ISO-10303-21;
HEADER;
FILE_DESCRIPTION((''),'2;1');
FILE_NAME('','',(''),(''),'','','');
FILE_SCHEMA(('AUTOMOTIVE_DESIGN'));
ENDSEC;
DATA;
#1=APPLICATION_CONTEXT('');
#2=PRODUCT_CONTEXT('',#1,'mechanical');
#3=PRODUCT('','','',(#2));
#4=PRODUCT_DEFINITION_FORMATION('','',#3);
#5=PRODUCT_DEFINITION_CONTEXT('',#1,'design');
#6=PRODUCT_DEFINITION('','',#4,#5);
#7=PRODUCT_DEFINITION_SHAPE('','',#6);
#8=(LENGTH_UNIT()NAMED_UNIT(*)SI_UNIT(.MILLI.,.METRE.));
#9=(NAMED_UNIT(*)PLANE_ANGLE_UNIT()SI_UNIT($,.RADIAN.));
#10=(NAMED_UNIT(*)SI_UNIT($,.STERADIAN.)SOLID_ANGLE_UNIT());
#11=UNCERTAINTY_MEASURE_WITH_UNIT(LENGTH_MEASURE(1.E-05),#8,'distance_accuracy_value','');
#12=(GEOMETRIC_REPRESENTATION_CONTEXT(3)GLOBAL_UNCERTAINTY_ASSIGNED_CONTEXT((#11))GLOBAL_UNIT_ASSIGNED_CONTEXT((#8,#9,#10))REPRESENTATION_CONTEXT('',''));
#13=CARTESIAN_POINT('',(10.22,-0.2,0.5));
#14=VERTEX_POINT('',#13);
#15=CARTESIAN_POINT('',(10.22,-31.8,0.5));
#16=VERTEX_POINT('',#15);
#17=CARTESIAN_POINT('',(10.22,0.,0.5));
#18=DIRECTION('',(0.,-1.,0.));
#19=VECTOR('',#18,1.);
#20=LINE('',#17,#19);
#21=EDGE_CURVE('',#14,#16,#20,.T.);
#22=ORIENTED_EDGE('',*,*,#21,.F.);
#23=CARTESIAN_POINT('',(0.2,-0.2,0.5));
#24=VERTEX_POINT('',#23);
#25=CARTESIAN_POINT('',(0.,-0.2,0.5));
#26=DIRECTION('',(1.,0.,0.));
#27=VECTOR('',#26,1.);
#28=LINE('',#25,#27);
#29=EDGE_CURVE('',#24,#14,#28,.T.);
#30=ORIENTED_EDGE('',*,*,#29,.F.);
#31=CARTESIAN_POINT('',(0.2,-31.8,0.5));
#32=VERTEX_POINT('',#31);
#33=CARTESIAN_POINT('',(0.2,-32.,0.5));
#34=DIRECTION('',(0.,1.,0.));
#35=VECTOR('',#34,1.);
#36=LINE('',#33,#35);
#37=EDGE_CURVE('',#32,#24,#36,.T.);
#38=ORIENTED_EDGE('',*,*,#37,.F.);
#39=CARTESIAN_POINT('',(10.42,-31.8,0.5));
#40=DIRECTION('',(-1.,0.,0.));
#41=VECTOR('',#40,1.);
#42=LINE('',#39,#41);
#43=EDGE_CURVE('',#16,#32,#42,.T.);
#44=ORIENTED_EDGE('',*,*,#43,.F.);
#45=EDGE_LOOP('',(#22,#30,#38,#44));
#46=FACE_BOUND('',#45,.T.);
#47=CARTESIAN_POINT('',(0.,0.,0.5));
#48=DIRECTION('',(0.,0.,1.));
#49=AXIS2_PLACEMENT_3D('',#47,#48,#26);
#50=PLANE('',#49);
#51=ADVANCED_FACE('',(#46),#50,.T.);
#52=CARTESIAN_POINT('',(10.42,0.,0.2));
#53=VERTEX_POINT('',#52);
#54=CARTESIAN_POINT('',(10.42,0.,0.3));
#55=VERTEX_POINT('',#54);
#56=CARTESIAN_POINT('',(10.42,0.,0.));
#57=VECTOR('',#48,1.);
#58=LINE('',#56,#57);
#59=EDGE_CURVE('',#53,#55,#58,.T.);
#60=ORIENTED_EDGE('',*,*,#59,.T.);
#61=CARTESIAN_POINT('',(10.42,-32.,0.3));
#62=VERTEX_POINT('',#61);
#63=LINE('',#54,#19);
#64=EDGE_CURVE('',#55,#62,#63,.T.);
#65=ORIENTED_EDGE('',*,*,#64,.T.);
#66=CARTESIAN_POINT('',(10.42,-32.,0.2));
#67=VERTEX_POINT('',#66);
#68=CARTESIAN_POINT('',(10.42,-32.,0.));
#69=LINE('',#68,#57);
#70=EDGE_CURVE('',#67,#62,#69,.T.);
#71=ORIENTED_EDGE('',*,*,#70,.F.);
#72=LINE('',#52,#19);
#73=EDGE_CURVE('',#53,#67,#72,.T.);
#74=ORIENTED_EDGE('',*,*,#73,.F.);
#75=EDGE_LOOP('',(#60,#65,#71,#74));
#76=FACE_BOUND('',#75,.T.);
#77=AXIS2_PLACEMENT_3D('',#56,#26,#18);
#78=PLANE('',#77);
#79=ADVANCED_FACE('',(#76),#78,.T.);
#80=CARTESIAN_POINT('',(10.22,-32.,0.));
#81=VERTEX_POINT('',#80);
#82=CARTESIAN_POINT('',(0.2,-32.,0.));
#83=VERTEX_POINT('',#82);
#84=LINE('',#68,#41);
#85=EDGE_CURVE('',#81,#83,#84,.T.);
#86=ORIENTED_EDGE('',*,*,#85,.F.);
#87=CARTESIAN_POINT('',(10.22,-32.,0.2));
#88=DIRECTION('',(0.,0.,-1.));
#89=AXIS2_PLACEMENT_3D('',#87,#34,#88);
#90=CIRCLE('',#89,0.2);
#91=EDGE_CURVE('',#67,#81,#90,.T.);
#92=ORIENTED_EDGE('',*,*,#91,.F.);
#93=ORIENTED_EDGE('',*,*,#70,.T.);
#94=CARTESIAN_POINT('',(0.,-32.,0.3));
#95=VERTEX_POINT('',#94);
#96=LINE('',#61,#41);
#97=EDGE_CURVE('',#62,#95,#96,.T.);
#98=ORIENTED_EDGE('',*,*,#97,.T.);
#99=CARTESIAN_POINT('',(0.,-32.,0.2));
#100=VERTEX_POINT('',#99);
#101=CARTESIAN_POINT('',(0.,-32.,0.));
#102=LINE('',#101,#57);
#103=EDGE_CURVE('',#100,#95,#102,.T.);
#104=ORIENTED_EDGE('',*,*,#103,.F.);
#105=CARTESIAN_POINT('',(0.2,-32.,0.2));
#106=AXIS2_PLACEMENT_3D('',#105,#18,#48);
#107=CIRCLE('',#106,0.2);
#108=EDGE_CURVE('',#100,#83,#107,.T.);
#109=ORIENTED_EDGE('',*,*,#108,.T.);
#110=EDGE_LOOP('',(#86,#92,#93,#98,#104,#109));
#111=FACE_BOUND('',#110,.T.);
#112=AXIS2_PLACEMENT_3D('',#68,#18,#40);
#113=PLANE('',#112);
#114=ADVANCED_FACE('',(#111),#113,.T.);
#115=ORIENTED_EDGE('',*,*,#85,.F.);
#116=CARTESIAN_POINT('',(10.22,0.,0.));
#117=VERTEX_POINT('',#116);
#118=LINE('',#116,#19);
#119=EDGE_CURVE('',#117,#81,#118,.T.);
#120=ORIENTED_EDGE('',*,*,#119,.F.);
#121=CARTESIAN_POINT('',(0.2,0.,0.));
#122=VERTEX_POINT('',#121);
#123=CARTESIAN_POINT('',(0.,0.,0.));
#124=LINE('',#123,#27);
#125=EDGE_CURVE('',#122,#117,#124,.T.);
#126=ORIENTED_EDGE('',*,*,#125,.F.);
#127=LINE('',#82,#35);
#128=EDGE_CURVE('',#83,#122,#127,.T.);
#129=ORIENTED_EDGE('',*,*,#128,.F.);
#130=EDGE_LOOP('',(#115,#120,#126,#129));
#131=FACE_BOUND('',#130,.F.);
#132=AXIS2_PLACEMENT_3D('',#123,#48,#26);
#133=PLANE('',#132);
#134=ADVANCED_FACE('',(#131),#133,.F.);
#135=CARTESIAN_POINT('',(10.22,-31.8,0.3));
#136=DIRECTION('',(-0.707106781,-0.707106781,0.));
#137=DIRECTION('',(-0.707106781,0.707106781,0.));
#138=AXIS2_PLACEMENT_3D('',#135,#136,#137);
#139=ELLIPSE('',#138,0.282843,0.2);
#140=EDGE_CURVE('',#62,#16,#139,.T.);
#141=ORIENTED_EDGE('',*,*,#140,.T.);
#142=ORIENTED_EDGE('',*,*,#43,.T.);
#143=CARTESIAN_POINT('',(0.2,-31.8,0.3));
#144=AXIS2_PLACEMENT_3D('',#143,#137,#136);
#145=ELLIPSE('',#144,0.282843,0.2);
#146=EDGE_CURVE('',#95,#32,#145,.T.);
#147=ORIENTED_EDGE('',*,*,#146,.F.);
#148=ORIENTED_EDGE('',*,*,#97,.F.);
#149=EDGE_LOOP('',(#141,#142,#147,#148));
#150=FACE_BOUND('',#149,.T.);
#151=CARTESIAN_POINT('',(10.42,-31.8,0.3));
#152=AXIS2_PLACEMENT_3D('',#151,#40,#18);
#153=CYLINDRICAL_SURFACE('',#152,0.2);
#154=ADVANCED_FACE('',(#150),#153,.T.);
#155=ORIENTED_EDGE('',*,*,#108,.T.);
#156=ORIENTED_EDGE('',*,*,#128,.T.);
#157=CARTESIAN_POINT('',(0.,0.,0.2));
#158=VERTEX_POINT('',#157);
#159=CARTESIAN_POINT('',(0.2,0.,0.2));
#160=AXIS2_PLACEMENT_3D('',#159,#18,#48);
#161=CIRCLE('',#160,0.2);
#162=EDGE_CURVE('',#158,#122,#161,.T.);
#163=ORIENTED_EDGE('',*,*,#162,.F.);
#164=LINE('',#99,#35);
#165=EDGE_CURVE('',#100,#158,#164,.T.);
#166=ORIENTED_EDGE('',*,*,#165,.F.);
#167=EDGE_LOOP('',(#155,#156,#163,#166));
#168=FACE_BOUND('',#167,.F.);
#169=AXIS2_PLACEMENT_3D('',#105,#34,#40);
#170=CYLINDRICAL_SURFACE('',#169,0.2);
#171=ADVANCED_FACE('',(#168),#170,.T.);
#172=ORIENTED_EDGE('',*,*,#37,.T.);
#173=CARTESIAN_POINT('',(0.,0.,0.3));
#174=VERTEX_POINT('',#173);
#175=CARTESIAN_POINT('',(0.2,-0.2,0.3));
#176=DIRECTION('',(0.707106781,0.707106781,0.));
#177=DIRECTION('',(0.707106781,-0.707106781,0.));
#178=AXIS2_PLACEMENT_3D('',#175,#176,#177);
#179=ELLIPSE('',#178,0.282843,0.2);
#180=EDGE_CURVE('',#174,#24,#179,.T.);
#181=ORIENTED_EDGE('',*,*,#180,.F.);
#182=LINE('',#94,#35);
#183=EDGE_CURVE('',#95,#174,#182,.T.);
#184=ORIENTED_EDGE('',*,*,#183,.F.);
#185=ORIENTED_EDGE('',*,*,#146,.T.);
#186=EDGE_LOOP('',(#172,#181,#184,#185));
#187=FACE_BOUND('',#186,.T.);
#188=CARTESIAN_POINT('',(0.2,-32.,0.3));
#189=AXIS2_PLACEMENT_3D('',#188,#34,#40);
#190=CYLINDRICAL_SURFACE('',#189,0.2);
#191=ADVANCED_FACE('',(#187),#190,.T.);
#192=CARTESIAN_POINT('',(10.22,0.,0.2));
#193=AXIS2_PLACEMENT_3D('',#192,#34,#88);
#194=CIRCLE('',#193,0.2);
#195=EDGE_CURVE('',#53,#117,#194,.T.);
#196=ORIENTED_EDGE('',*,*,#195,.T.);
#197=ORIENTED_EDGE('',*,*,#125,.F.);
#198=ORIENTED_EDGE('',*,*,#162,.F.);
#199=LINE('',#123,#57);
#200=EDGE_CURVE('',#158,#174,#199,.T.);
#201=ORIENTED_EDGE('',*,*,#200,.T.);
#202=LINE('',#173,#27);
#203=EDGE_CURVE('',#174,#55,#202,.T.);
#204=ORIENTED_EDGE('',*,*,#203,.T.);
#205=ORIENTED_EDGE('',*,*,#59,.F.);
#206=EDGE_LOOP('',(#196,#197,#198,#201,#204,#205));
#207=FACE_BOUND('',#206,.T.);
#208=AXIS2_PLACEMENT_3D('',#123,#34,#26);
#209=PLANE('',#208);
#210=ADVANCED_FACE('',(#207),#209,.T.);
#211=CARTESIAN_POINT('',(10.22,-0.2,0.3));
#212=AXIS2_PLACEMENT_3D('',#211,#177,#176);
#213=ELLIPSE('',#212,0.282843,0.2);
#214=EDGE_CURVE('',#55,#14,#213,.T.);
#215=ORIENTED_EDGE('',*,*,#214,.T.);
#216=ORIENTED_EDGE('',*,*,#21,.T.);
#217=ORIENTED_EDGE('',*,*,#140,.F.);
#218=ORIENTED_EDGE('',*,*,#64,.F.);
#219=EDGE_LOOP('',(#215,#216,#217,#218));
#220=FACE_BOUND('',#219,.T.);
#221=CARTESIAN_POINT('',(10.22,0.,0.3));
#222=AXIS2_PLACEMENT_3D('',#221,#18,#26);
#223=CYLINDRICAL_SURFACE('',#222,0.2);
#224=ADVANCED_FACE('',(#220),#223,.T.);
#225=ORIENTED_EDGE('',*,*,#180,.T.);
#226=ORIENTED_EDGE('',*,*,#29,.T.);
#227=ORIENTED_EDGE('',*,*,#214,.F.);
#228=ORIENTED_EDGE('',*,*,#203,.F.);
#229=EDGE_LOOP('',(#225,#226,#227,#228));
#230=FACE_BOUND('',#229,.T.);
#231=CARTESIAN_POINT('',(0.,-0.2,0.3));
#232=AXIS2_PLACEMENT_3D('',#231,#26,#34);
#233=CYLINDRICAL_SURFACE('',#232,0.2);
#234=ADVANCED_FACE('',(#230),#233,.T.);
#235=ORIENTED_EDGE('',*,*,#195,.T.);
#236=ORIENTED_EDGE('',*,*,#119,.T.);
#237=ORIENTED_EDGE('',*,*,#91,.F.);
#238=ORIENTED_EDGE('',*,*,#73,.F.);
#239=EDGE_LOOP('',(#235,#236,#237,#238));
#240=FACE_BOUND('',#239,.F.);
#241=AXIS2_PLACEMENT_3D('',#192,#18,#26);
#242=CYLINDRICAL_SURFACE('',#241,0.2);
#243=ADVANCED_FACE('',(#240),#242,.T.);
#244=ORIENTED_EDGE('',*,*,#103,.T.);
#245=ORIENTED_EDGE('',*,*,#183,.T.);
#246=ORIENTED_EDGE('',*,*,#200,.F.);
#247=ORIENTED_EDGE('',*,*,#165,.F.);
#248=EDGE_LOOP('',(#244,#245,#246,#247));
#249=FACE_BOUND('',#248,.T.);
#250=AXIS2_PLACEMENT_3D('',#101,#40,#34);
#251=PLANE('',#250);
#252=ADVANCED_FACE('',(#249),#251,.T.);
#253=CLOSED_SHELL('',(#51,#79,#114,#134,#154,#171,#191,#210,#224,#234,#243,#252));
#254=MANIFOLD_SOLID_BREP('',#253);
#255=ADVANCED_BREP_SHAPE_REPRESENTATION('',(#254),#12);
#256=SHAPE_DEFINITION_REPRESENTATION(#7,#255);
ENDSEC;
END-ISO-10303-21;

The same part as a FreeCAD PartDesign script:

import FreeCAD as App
import Part
import Sketcher
from FreeCAD import Vector


def edges_at(feature, points):
    """Names of the edges that pass closest to the given points."""
    edges = feature.Shape.Edges
    near = lambda p: min(range(len(edges)), key=lambda i: edges[i].distToShape(Part.Vertex(*p))[0])
    return sorted({f"Edge{near(p) + 1}" for p in points})

doc = App.newDocument("Part")
body = doc.addObject("PartDesign::Body", "Body")

sketch1 = body.newObject("Sketcher::SketchObject", "Sketch")
sketch1.AttachmentSupport = (doc.getObject("XY_Plane"), [""])
sketch1.MapMode = "FlatFace"
sketch1.addGeometry([
    Part.LineSegment(Vector(10, 0, 0), Vector(0, 0, 0)),
    Part.LineSegment(Vector(0, 0, 0), Vector(0, -32, 0)),
    Part.LineSegment(Vector(0, -32, 0), Vector(10, -32, 0)),
    Part.LineSegment(Vector(10, -32, 0), Vector(10, 0, 0)),
], False)
sketch1.addConstraint([
    Sketcher.Constraint("Coincident", 0, 2, 1, 1),
    Sketcher.Constraint("Coincident", 1, 2, 2, 1),
    Sketcher.Constraint("Coincident", 2, 2, 3, 1),
    Sketcher.Constraint("Coincident", 3, 2, 0, 1),
    Sketcher.Constraint("Horizontal", 0),
    Sketcher.Constraint("Vertical", 1),
    Sketcher.Constraint("Horizontal", 2),
    Sketcher.Constraint("Vertical", 3),
    Sketcher.Constraint("Coincident", 0, 2, -1, 1),
    Sketcher.Constraint("DistanceY", 1, 2, 1, 1, 32.0),
    Sketcher.Constraint("DistanceX", 0, 2, 0, 1, 10.42),
])
pad1 = body.newObject("PartDesign::Pad", "Pad")
pad1.Profile = sketch1
pad1.Length = 0.5
doc.recompute()

fillet = body.newObject("PartDesign::Fillet", "Fillet")
fillet.Base = (pad1, edges_at(pad1, [
    (5.21, 0, 0.5),
    (5.21, -32, 0.5),
    (10.42, -16, 0),
    (10.42, -16, 0.5),
    (0, -16, 0),
    (0, -16, 0.5),
]))
fillet.Radius = 0.2

doc.recompute()
